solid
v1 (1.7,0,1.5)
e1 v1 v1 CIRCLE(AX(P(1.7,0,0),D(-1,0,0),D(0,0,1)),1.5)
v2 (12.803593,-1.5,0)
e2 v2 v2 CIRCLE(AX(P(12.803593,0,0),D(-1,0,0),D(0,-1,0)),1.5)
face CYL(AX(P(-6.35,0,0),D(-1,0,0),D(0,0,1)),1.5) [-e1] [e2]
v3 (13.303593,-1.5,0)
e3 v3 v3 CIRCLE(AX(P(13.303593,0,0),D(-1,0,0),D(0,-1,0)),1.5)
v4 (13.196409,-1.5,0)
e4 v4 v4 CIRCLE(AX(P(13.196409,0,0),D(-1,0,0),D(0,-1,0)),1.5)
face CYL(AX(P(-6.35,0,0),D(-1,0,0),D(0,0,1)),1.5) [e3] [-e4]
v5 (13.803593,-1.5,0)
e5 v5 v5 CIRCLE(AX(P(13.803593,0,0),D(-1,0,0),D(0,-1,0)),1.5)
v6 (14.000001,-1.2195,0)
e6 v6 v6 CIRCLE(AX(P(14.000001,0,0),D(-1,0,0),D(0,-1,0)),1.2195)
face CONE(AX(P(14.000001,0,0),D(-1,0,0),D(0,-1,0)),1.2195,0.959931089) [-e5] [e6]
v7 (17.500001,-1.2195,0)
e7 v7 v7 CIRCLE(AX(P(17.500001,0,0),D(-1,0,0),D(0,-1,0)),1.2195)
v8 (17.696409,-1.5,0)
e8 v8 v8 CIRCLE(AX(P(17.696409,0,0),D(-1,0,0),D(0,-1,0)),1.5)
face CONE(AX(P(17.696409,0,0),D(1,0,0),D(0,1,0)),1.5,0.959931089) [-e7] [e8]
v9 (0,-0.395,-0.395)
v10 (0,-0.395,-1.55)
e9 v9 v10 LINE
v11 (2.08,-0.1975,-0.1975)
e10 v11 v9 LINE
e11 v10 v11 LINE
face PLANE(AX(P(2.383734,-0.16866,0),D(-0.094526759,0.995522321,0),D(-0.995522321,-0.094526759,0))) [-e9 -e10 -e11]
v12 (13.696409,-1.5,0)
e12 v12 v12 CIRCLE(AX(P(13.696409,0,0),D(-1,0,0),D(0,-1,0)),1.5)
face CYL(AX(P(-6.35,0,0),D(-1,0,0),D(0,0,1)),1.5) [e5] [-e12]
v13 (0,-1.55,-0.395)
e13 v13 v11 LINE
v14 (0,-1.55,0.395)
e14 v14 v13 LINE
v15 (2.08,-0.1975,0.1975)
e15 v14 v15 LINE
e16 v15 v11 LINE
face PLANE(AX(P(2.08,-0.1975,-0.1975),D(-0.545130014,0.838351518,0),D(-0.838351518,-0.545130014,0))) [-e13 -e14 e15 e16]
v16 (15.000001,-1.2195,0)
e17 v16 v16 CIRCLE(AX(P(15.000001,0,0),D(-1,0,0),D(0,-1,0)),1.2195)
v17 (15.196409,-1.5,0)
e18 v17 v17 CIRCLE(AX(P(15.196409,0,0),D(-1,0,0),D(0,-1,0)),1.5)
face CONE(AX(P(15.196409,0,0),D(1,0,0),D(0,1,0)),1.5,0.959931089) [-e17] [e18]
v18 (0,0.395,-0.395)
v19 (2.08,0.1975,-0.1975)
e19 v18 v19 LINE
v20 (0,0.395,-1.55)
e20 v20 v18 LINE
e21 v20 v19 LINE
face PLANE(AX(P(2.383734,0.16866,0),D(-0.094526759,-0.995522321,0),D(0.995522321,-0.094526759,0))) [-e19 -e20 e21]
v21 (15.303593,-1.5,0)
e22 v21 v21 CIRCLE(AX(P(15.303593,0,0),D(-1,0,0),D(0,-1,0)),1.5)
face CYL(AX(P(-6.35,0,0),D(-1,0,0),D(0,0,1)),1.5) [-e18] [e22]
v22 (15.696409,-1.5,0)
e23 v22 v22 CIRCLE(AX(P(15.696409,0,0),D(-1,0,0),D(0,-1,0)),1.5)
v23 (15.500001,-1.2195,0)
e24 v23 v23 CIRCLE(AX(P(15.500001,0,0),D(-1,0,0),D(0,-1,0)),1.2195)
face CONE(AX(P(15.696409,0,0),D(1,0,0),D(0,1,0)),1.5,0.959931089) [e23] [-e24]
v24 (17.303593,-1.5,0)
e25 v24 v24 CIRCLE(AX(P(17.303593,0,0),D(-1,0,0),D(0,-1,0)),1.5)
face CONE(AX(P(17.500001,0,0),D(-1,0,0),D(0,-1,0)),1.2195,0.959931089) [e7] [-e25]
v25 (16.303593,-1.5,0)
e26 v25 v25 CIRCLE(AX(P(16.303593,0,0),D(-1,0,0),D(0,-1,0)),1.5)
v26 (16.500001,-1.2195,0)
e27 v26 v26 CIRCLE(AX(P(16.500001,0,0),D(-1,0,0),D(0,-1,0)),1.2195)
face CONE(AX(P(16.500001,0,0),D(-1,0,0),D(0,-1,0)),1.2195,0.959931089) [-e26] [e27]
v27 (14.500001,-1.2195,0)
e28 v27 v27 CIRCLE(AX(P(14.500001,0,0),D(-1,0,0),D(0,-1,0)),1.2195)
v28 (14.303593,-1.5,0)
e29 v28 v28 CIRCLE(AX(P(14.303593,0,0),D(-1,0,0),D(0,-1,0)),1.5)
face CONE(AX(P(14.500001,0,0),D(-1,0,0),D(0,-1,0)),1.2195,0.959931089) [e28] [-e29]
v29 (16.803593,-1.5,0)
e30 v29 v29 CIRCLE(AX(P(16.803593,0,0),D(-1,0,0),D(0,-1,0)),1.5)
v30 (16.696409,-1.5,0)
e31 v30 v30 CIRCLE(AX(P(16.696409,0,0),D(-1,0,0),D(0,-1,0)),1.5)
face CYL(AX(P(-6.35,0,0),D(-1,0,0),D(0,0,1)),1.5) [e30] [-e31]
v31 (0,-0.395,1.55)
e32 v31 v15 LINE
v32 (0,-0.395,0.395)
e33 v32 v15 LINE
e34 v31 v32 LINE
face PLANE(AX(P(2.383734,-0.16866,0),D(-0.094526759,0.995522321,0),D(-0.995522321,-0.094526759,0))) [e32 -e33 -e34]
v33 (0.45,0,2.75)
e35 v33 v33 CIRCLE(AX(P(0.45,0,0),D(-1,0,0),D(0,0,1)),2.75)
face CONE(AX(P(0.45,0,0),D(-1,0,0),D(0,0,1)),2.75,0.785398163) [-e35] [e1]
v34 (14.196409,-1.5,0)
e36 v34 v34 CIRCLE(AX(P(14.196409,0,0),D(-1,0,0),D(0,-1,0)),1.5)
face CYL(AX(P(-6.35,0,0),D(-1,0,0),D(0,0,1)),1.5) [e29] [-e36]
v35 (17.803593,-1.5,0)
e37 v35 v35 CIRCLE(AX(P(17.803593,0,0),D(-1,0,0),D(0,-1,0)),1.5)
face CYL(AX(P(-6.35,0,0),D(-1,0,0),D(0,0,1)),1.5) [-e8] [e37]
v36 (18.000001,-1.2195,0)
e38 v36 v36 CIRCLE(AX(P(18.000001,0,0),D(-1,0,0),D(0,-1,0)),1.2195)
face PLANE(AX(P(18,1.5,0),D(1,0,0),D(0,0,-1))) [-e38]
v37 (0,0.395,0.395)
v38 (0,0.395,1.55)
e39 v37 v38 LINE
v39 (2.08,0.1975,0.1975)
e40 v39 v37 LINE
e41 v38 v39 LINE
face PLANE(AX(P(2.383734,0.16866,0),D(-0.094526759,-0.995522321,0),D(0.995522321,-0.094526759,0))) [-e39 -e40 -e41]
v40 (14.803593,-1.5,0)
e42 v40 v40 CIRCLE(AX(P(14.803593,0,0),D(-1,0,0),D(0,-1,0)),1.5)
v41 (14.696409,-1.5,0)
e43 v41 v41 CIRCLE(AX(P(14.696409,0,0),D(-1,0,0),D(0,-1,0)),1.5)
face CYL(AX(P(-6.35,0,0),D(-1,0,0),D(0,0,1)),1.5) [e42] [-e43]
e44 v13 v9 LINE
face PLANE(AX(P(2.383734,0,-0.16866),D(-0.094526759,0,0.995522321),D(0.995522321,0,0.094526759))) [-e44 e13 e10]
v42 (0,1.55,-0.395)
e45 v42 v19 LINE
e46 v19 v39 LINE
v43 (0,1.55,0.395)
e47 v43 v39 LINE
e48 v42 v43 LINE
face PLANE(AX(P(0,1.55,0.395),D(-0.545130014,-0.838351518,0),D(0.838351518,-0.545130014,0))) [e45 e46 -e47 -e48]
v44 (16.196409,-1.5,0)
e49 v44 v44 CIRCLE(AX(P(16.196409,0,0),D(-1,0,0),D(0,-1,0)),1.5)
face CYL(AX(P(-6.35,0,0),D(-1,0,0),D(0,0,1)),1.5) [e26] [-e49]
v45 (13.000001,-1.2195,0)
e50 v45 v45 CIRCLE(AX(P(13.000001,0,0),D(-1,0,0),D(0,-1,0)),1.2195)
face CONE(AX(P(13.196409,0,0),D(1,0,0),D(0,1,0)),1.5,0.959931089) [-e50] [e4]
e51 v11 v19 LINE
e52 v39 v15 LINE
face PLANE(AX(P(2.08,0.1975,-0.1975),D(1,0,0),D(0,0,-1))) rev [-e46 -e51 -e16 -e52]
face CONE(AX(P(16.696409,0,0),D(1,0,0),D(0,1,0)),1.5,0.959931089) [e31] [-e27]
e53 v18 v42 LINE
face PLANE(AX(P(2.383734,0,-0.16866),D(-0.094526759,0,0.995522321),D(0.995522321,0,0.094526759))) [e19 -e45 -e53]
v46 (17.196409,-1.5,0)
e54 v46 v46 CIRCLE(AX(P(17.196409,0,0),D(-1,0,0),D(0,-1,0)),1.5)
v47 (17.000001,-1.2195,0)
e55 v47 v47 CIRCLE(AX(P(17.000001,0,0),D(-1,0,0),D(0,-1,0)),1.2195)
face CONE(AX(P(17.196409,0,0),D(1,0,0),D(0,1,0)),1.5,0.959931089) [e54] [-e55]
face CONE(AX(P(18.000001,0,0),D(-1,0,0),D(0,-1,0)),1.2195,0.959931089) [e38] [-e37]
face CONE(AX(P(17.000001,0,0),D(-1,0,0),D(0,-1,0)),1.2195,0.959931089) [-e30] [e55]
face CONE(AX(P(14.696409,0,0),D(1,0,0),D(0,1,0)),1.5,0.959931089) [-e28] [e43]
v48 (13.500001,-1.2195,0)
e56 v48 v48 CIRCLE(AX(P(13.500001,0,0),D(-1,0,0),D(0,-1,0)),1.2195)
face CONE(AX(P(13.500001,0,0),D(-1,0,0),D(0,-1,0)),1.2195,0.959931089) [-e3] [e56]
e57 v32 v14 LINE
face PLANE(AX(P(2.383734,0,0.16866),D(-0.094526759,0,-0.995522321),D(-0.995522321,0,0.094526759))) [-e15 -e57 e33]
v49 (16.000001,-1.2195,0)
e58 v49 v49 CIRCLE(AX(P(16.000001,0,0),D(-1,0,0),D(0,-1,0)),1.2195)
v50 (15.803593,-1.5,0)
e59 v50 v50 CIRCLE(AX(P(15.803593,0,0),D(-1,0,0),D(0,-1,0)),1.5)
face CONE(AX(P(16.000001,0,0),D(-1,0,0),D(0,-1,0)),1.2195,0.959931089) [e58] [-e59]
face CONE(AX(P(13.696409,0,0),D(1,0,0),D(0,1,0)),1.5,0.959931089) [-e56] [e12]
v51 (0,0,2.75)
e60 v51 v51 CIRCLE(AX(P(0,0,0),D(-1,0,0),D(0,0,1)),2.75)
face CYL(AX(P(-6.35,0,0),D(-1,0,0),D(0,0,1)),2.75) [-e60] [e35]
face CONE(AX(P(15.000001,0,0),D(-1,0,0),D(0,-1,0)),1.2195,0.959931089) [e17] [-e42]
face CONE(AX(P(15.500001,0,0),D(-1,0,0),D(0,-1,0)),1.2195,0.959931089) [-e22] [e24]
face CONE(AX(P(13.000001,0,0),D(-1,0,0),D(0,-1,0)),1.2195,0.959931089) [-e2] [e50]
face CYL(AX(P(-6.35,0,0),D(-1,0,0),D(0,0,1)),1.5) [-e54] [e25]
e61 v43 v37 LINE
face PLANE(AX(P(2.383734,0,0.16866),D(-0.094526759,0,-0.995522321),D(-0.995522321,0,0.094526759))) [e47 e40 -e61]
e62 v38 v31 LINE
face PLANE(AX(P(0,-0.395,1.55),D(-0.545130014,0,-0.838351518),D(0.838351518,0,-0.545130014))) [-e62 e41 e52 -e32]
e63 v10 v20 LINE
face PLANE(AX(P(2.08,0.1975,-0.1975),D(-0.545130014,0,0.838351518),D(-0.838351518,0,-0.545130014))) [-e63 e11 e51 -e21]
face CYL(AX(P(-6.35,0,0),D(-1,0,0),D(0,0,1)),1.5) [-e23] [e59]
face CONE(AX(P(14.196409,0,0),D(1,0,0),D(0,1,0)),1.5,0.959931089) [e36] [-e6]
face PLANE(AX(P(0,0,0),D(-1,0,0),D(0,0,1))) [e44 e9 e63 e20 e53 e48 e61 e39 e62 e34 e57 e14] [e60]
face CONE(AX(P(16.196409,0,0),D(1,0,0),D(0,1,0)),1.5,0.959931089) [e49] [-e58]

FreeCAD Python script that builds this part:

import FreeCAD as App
import Part
import Sketcher

V = App.Vector
Q = App.Units.Quantity

doc = App.newDocument("Part")
body = doc.addObject("PartDesign::Body", "Body")

# Sketch on XY plane
sketch1 = body.newObject("Sketcher::SketchObject", "Sketch")
sketch1.AttachmentSupport = (doc.getObject("XY_Plane"), [""])
sketch1.MapMode = "FlatFace"
sketch1.addGeometry(Part.LineSegment(V(0, 2.75, 0), V(0, 0, 0)), False)
sketch1.addGeometry(Part.LineSegment(V(0, 0, 0), V(18, 0, 0)), False)
sketch1.addGeometry(Part.LineSegment(V(18, 0, 0), V(18, 1.5, 0)), False)
sketch1.addGeometry(Part.LineSegment(V(18, 1.5, 0), V(1.7, 1.5, 0)), False)
sketch1.addGeometry(Part.LineSegment(V(1.7, 1.5, 0), V(0.45, 2.75, 0)), False)
sketch1.addGeometry(Part.LineSegment(V(0.45, 2.75, 0), V(0, 2.75, 0)), False)
sketch1.addConstraint(Sketcher.Constraint("Coincident", 0, 2, 1, 1))
sketch1.addConstraint(Sketcher.Constraint("Coincident", 1, 2, 2, 1))
sketch1.addConstraint(Sketcher.Constraint("Coincident", 2, 2, 3, 1))
sketch1.addConstraint(Sketcher.Constraint("Coincident", 3, 2, 4, 1))
sketch1.addConstraint(Sketcher.Constraint("Coincident", 4, 2, 5, 1))
sketch1.addConstraint(Sketcher.Constraint("Coincident", 5, 2, 0, 1))
sketch1.addConstraint(Sketcher.Constraint("Vertical", 0))
sketch1.addConstraint(Sketcher.Constraint("Horizontal", 1))
sketch1.addConstraint(Sketcher.Constraint("Vertical", 2))
sketch1.addConstraint(Sketcher.Constraint("Horizontal", 3))
sketch1.addConstraint(Sketcher.Constraint("Horizontal", 5))
sketch1.addConstraint(Sketcher.Constraint("Coincident", 0, 2, -1, 1))
sketch1.addConstraint(Sketcher.Constraint("DistanceX", 1, 1, 1, 2, Q("18 mm")))
sketch1.addConstraint(Sketcher.Constraint("Angle", 4, Q("135 deg")))
sketch1.addConstraint(Sketcher.Constraint("DistanceX", 3, 2, 3, 1, Q("16.3 mm")))
sketch1.addConstraint(Sketcher.Constraint("DistanceY", 2, 1, 2, 2, Q("1.5 mm")))
sketch1.addConstraint(Sketcher.Constraint("DistanceX", 5, 2, 5, 1, Q("0.45 mm")))
revolution = body.newObject("PartDesign::Revolution", "Revolution")
revolution.Profile = sketch1
revolution.ReferenceAxis = (sketch1, ["H_Axis"])
revolution.Angle = 360

# Sketch on YZ plane
sketch2 = body.newObject("Sketcher::SketchObject", "Sketch001")
sketch2.AttachmentSupport = (doc.getObject("YZ_Plane"), [""])
sketch2.MapMode = "FlatFace"
sketch2.addGeometry(Part.LineSegment(V(1.6, 0.4, 0), V(1.6, -0.4, 0)), False)
sketch2.addGeometry(Part.LineSegment(V(1.6, -0.4, 0), V(-1.6, -0.4, 0)), False)
sketch2.addGeometry(Part.LineSegment(V(-1.6, -0.4, 0), V(-1.6, 0.4, 0)), False)
sketch2.addGeometry(Part.LineSegment(V(-1.6, 0.4, 0), V(1.6, 0.4, 0)), False)
sketch2.addConstraint(Sketcher.Constraint("Coincident", 0, 2, 1, 1))
sketch2.addConstraint(Sketcher.Constraint("Coincident", 1, 2, 2, 1))
sketch2.addConstraint(Sketcher.Constraint("Coincident", 2, 2, 3, 1))
sketch2.addConstraint(Sketcher.Constraint("Coincident", 3, 2, 0, 1))
sketch2.addConstraint(Sketcher.Constraint("Vertical", 0))
sketch2.addConstraint(Sketcher.Constraint("Horizontal", 1))
sketch2.addConstraint(Sketcher.Constraint("Vertical", 2))
sketch2.addConstraint(Sketcher.Constraint("Horizontal", 3))
sketch2.addConstraint(Sketcher.Constraint("Symmetric", 0, 2, 2, 2, -1, 1))
sketch2.addConstraint(Sketcher.Constraint("DistanceX", 1, 2, 1, 1, Q("3.1 mm")))
sketch2.addConstraint(Sketcher.Constraint("DistanceY", 0, 2, 0, 1, Q("0.79 mm")))

# Sketch on YZ plane
sketch3 = body.newObject("Sketcher::SketchObject", "Sketch002")
sketch3.AttachmentSupport = (doc.getObject("YZ_Plane"), [""])
sketch3.MapMode = "FlatFace"
sketch3.AttachmentOffset = App.Placement(V(0, 0, 2.08), App.Rotation())
sketch3.addGeometry(Part.LineSegment(V(0.2, 0.2, 0), V(0.2, -0.2, 0)), False)
sketch3.addGeometry(Part.LineSegment(V(0.2, -0.2, 0), V(-0.2, -0.2, 0)), False)
sketch3.addGeometry(Part.LineSegment(V(-0.2, -0.2, 0), V(-0.2, 0.2, 0)), False)
sketch3.addGeometry(Part.LineSegment(V(-0.2, 0.2, 0), V(0.2, 0.2, 0)), False)
sketch3.addConstraint(Sketcher.Constraint("Coincident", 0, 2, 1, 1))
sketch3.addConstraint(Sketcher.Constraint("Coincident", 1, 2, 2, 1))
sketch3.addConstraint(Sketcher.Constraint("Coincident", 2, 2, 3, 1))
sketch3.addConstraint(Sketcher.Constraint("Coincident", 3, 2, 0, 1))
sketch3.addConstraint(Sketcher.Constraint("Vertical", 0))
sketch3.addConstraint(Sketcher.Constraint("Horizontal", 1))
sketch3.addConstraint(Sketcher.Constraint("Vertical", 2))
sketch3.addConstraint(Sketcher.Constraint("Horizontal", 3))
sketch3.addConstraint(Sketcher.Constraint("Symmetric", 0, 2, 2, 2, -1, 1))
sketch3.addConstraint(Sketcher.Constraint("Equal", 3, 0))
sketch3.addConstraint(Sketcher.Constraint("DistanceX", 1, 2, 1, 1, Q("0.395 mm")))

subtractiveloft = body.newObject("PartDesign::SubtractiveLoft", "SubtractiveLoft")
subtractiveloft.Profile = sketch2
subtractiveloft.Sections = [sketch3]
doc.recompute()

polarpattern = body.newObject("PartDesign::PolarPattern", "PolarPattern")
polarpattern.Originals = [subtractiveloft]
polarpattern.Axis = (doc.getObject("X_Axis"), [""])
polarpattern.Angle = 90
polarpattern.Occurrences = 2
body.Tip = polarpattern

# Sketch on XY plane
sketch4 = body.newObject("Sketcher::SketchObject", "Sketch003")
sketch4.AttachmentSupport = (doc.getObject("XY_Plane"), [""])
sketch4.MapMode = "FlatFace"
sketch4.addGeometry(Part.LineSegment(V(13, -1.22, 0), V(12.8, -1.5, 0)), False)
sketch4.addGeometry(Part.LineSegment(V(12.8, -1.5, 0), V(12.8, -1.88, 0)), False)
sketch4.addGeometry(Part.LineSegment(V(12.8, -1.88, 0), V(13.2, -1.88, 0)), False)
sketch4.addGeometry(Part.LineSegment(V(13.2, -1.88, 0), V(13.2, -1.5, 0)), False)
sketch4.addGeometry(Part.LineSegment(V(13.2, -1.5, 0), V(13, -1.22, 0)), False)
sketch4.addConstraint(Sketcher.Constraint("Coincident", 0, 2, 1, 1))
sketch4.addConstraint(Sketcher.Constraint("Coincident", 1, 2, 2, 1))
sketch4.addConstraint(Sketcher.Constraint("Coincident", 2, 2, 3, 1))
sketch4.addConstraint(Sketcher.Constraint("Coincident", 3, 2, 4, 1))
sketch4.addConstraint(Sketcher.Constraint("Coincident", 4, 2, 0, 1))
sketch4.addConstraint(Sketcher.Constraint("Vertical", 1))
sketch4.addConstraint(Sketcher.Constraint("Horizontal", 2))
sketch4.addConstraint(Sketcher.Constraint("Vertical", 3))
sketch4.addConstraint(Sketcher.Constraint("Horizontal", 0, 2, 3, 2))
sketch4.addConstraint(Sketcher.Constraint("Equal", 0, 4))
sketch4.addConstraint(Sketcher.Constraint("Angle", 0, Q("-125 deg")))
sketch4.addConstraint(Sketcher.Constraint("DistanceX", -1, 1, 4, 2, Q("13.000001 mm")))
sketch4.addConstraint(Sketcher.Constraint("DistanceY", 0, 2, -1, 1, Q("1.5 mm")))
sketch4.addConstraint(Sketcher.Constraint("DistanceY", 1, 2, 1, 1, Q("0.375 mm")))
sketch4.addConstraint(Sketcher.Constraint("DistanceY", 4, 2, -1, 1, Q("1.2195 mm")))
groove = body.newObject("PartDesign::Groove", "Groove")
groove.Profile = sketch4
groove.ReferenceAxis = (sketch4, ["H_Axis"])
groove.Angle = 360
doc.recompute()

linearpattern = body.newObject("PartDesign::LinearPattern", "LinearPattern")
linearpattern.Originals = [groove]
linearpattern.Direction = (doc.getObject("X_Axis"), [""])
linearpattern.Mode = "offset"
linearpattern.Offset = 0.5
linearpattern.Occurrences = 11
body.Tip = linearpattern

doc.recompute()
